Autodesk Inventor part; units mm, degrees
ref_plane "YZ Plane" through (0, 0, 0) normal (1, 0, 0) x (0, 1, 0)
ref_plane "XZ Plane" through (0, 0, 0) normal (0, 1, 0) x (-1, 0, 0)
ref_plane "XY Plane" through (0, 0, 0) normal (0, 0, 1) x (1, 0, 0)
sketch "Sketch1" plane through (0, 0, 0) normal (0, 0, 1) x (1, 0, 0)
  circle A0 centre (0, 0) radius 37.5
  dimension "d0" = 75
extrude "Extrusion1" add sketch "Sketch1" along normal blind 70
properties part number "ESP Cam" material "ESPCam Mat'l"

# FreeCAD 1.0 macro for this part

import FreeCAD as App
import Part
import Sketcher
from FreeCAD import Vector
Q = App.Units.Quantity

doc = App.newDocument("Part")
body = doc.addObject("PartDesign::Body", "Body")

sketch1 = body.newObject("Sketcher::SketchObject", "Sketch")
sketch1.AttachmentSupport = (doc.getObject("XY_Plane"), [""])
sketch1.MapMode = "FlatFace"
sketch1.addGeometry(Part.Circle(Vector(0, 0, 0), Vector(0, 0, 1), 38), False)
sketch1.addConstraint(Sketcher.Constraint("Coincident", 0, 3, -1, 1))
sketch1.addConstraint(Sketcher.Constraint("Diameter", 0, Q("75 mm")))
pad1 = body.newObject("PartDesign::Pad", "Pad")
pad1.Profile = sketch1
pad1.Length = 70

doc.recompute()
